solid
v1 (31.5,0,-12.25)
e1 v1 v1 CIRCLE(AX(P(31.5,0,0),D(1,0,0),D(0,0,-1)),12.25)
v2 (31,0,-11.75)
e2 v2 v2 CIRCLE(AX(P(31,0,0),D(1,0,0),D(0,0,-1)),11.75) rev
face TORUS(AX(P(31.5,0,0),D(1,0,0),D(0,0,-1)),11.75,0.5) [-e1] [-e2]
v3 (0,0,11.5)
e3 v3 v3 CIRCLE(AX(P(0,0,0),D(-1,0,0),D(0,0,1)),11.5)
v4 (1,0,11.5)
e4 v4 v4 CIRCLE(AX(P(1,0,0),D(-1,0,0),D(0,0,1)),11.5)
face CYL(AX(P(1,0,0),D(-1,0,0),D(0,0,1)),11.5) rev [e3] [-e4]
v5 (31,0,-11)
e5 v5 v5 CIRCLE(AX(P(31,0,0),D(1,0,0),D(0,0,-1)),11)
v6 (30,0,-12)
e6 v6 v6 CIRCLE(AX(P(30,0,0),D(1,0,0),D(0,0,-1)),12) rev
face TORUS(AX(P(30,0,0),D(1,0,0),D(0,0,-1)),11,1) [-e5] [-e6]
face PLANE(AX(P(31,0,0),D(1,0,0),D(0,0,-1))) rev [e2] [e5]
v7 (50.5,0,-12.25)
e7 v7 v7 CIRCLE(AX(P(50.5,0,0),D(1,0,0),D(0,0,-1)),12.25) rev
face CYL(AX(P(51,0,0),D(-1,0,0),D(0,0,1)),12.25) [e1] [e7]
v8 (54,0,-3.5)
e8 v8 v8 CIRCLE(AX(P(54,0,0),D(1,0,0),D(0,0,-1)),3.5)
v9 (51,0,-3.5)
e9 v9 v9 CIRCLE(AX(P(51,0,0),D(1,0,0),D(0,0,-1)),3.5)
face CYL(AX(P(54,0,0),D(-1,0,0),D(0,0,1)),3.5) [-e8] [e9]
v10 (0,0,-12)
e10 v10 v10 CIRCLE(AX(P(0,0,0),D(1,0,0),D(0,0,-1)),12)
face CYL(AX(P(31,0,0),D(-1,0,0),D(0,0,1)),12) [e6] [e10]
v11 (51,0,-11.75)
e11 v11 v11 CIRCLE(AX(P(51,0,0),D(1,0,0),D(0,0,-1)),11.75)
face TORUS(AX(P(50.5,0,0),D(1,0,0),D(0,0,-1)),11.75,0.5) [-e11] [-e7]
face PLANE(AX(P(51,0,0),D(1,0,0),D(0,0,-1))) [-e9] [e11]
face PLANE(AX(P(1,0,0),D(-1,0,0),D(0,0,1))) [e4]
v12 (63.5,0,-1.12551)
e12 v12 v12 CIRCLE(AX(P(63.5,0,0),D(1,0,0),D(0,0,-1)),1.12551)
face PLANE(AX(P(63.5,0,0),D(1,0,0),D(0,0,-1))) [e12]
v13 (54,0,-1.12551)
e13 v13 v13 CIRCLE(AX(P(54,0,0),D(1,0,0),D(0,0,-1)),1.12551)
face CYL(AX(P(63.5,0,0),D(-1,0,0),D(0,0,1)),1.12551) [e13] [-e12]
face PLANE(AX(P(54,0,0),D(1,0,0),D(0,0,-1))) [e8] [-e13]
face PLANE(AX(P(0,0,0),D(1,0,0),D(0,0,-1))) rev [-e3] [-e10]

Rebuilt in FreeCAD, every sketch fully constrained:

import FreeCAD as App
import Part
import Sketcher


def edges_at(feature, points):
    """Names of the edges that pass closest to the given points."""
    edges = feature.Shape.Edges
    near = lambda p: min(range(len(edges)), key=lambda i: edges[i].distToShape(Part.Vertex(*p))[0])
    return sorted({f"Edge{near(p) + 1}" for p in points})

doc = App.newDocument("Part")
body = doc.addObject("PartDesign::Body", "Body")

# Sketch on YZ plane
sketch1 = body.newObject("Sketcher::SketchObject", "Sketch")
sketch1.AttachmentSupport = (doc.getObject("YZ_Plane"), [""])
sketch1.MapMode = "FlatFace"
sketch1.addGeometry(Part.Circle(App.Vector(0, 0, 0), App.Vector(0, 0, 1), 12), False)
sketch1.addConstraint([
    Sketcher.Constraint("Coincident", 0, 3, -1, 1),
    Sketcher.Constraint("Diameter", 0, 24.0),
])
pad1 = body.newObject("PartDesign::Pad", "Pad")
pad1.Profile = sketch1
pad1.Length = 31
doc.recompute()

fillet = body.newObject("PartDesign::Fillet", "Fillet")
fillet.Base = (pad1, edges_at(pad1, [(31, 0, 12)]))
fillet.Radius = 1

# Sketch on YZ plane
sketch2 = body.newObject("Sketcher::SketchObject", "Sketch001")
sketch2.AttachmentSupport = (doc.getObject("YZ_Plane"), [""])
sketch2.MapMode = "FlatFace"
sketch2.addGeometry(Part.Circle(App.Vector(0, 0, 0), App.Vector(0, 0, 1), 11.5), False)
sketch2.addConstraint([
    Sketcher.Constraint("Coincident", 0, 3, -1, 1),
    Sketcher.Constraint("Diameter", 0, 23.0),
])
pocket1 = body.newObject("PartDesign::Pocket", "Pocket")
pocket1.Profile = sketch2
pocket1.Length = 1
pocket1.Reversed = True

# Sketch on YZ plane
sketch3 = body.newObject("Sketcher::SketchObject", "Sketch002")
sketch3.AttachmentSupport = (doc.getObject("YZ_Plane"), [""])
sketch3.MapMode = "FlatFace"
sketch3.AttachmentOffset = App.Placement(App.Vector(0, 0, 31), App.Rotation())
sketch3.addGeometry(Part.Circle(App.Vector(0, 0, 0), App.Vector(0, 0, 1), 12.25), False)
sketch3.addConstraint([
    Sketcher.Constraint("Coincident", 0, 3, -1, 1),
    Sketcher.Constraint("Diameter", 0, 24.5),
])
pad2 = body.newObject("PartDesign::Pad", "Pad001")
pad2.Profile = sketch3
pad2.Length = 20
doc.recompute()

fillet2 = body.newObject("PartDesign::Fillet", "Fillet001")
fillet2.Base = (pad2, edges_at(pad2, [(31, 0, 12.25), (51, 0, 12.25)]))
fillet2.Radius = 0.5

# Sketch on YZ plane
sketch4 = body.newObject("Sketcher::SketchObject", "Sketch003")
sketch4.AttachmentSupport = (doc.getObject("YZ_Plane"), [""])
sketch4.MapMode = "FlatFace"
sketch4.AttachmentOffset = App.Placement(App.Vector(0, 0, 51), App.Rotation())
sketch4.addGeometry(Part.Circle(App.Vector(0, 0, 0), App.Vector(0, 0, 1), 3.5), False)
sketch4.addConstraint([
    Sketcher.Constraint("Coincident", 0, 3, -1, 1),
    Sketcher.Constraint("Diameter", 0, 7.0),
])
pad3 = body.newObject("PartDesign::Pad", "Pad002")
pad3.Profile = sketch4
pad3.Length = 3

# Sketch on YZ plane
sketch5 = body.newObject("Sketcher::SketchObject", "Sketch004")
sketch5.AttachmentSupport = (doc.getObject("YZ_Plane"), [""])
sketch5.MapMode = "FlatFace"
sketch5.AttachmentOffset = App.Placement(App.Vector(0, 0, 54), App.Rotation())
sketch5.addGeometry(Part.Circle(App.Vector(0, 0, 0), App.Vector(0, 0, 1), 1.12551), False)
sketch5.addConstraint([
    Sketcher.Constraint("Coincident", 0, 3, -1, 1),
    Sketcher.Constraint("Diameter", 0, 2.251021),
])
pad4 = body.newObject("PartDesign::Pad", "Pad003")
pad4.Profile = sketch5
pad4.Length = 9.5

doc.recompute()
